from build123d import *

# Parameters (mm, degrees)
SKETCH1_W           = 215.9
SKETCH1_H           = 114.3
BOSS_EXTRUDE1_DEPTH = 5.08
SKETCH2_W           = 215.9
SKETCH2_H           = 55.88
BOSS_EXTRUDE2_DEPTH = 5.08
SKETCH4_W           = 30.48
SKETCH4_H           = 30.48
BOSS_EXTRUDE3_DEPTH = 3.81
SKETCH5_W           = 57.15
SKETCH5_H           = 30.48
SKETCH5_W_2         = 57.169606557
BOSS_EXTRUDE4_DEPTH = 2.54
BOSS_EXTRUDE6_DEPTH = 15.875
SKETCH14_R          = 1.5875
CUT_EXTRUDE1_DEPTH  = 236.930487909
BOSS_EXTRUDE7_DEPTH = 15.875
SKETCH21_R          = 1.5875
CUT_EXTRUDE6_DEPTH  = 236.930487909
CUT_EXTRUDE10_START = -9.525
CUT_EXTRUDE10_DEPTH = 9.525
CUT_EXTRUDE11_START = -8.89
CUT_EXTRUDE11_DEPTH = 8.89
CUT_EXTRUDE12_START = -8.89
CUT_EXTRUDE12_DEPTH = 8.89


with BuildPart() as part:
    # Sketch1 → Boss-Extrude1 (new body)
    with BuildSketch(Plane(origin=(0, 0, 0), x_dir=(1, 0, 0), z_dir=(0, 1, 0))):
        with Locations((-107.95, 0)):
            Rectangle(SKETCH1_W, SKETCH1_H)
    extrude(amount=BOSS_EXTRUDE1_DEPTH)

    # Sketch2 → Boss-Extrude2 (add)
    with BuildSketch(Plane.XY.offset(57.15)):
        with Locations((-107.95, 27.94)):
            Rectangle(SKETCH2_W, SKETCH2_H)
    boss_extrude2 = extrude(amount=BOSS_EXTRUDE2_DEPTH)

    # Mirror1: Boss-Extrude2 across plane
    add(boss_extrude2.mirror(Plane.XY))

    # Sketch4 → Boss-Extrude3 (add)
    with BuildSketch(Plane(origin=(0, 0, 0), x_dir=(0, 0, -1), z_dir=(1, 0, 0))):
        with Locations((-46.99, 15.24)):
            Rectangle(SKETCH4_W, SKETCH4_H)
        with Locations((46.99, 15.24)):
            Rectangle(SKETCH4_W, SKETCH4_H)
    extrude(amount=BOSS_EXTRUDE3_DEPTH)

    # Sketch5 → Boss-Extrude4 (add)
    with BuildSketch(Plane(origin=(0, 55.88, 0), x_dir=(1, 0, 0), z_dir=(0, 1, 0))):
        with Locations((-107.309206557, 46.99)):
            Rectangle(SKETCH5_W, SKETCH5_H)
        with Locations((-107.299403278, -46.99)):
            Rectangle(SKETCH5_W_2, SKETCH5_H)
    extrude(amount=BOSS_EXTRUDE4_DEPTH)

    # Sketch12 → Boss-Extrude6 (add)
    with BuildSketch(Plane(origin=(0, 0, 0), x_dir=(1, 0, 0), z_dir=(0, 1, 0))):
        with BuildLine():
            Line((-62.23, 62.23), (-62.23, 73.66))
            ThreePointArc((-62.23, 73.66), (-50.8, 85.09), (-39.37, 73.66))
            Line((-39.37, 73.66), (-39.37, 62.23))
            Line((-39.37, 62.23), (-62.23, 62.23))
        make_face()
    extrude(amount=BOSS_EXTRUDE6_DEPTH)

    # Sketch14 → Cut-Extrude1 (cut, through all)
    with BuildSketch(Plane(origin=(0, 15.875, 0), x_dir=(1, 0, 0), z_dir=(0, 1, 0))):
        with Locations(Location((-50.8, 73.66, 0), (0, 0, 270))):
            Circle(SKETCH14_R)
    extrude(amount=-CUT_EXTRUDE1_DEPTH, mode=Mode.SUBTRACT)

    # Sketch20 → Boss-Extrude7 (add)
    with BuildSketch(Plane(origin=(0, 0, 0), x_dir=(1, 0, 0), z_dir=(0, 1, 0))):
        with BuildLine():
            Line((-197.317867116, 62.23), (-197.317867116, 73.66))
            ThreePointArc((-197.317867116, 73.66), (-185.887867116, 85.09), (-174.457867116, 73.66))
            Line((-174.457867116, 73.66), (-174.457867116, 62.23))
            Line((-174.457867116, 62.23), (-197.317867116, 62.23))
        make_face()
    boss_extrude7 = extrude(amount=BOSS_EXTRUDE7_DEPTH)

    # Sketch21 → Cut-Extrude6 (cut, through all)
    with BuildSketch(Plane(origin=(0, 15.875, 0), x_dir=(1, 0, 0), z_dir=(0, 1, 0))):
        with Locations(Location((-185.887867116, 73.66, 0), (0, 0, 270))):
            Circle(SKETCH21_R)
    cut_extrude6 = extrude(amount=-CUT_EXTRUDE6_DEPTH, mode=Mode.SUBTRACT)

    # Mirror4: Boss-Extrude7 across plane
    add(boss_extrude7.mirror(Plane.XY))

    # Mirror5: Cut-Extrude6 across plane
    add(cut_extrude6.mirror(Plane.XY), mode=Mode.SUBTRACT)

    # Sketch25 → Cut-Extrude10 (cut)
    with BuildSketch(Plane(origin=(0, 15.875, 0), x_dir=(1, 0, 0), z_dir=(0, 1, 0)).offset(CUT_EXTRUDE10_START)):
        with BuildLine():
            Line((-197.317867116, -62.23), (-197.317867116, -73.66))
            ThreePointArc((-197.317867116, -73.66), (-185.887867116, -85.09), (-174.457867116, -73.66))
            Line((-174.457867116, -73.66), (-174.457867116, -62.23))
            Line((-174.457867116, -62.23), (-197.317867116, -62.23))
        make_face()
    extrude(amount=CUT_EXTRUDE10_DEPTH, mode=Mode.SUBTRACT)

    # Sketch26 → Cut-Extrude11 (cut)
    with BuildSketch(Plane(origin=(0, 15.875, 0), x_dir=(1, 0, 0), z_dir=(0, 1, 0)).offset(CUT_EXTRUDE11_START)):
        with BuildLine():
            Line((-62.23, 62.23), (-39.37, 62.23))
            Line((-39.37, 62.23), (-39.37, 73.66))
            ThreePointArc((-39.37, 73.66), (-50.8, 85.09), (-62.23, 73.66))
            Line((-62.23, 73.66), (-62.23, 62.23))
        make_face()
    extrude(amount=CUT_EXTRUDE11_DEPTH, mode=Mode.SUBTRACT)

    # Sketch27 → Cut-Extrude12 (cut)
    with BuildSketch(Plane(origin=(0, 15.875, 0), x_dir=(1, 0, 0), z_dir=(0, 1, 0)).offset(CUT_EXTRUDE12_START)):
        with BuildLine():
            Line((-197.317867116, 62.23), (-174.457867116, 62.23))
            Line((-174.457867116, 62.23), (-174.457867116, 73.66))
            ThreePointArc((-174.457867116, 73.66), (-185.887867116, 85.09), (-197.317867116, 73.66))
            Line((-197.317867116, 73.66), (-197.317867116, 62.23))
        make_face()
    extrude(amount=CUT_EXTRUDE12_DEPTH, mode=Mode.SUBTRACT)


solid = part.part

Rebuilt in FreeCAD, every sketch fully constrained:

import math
import FreeCAD as App
import Part
import Sketcher
from FreeCAD import Vector
Q = App.Units.Quantity

doc = App.newDocument("Part")
body = doc.addObject("PartDesign::Body", "Body")

sketch1 = body.newObject("Sketcher::SketchObject", "Sketch")
sketch1.AttachmentSupport = (doc.getObject("XZ_Plane"), [""])
sketch1.MapMode = "FlatFace"
sketch1.addGeometry(Part.LineSegment(Vector(-216, -57, 0), Vector(-216, 57, 0)), False)
sketch1.addGeometry(Part.LineSegment(Vector(-216, 57, 0), Vector(0, 57, 0)), False)
sketch1.addGeometry(Part.LineSegment(Vector(0, 57, 0), Vector(0, -57, 0)), False)
sketch1.addGeometry(Part.LineSegment(Vector(0, -57, 0), Vector(-216, -57, 0)), False)
sketch1.addConstraint(Sketcher.Constraint("Coincident", 0, 2, 1, 1))
sketch1.addConstraint(Sketcher.Constraint("Coincident", 1, 2, 2, 1))
sketch1.addConstraint(Sketcher.Constraint("Coincident", 2, 2, 3, 1))
sketch1.addConstraint(Sketcher.Constraint("Coincident", 3, 2, 0, 1))
sketch1.addConstraint(Sketcher.Constraint("Vertical", 0))
sketch1.addConstraint(Sketcher.Constraint("Horizontal", 1))
sketch1.addConstraint(Sketcher.Constraint("Vertical", 2))
sketch1.addConstraint(Sketcher.Constraint("Horizontal", 3))
sketch1.addConstraint(Sketcher.Constraint("Symmetric", 1, 2, 2, 2, -1, 1))
sketch1.addConstraint(Sketcher.Constraint("DistanceX", 1, 1, 1, 2, Q("8.5 in")))
sketch1.addConstraint(Sketcher.Constraint("DistanceY", 0, 1, 0, 2, Q("4.5 in")))
pad1 = body.newObject("PartDesign::Pad", "Pad")
pad1.Profile = sketch1
pad1.Length = Q("0.2 in")
pad1.Reversed = True

sketch2 = body.newObject("Sketcher::SketchObject", "Sketch001")
sketch2.AttachmentSupport = (doc.getObject("XY_Plane"), [""])
sketch2.MapMode = "FlatFace"
sketch2.AttachmentOffset = App.Placement(Vector(0, 0, 2.25 * 25.4), App.Rotation())
sketch2.addGeometry(Part.LineSegment(Vector(-216, 56, 0), Vector(-216, 0, 0)), False)
sketch2.addGeometry(Part.LineSegment(Vector(-216, 0, 0), Vector(0, 0, 0)), False)
sketch2.addGeometry(Part.LineSegment(Vector(0, 0, 0), Vector(0, 56, 0)), False)
sketch2.addGeometry(Part.LineSegment(Vector(0, 56, 0), Vector(-216, 56, 0)), False)
sketch2.addConstraint(Sketcher.Constraint("Coincident", 0, 2, 1, 1))
sketch2.addConstraint(Sketcher.Constraint("Coincident", 1, 2, 2, 1))
sketch2.addConstraint(Sketcher.Constraint("Coincident", 2, 2, 3, 1))
sketch2.addConstraint(Sketcher.Constraint("Coincident", 3, 2, 0, 1))
sketch2.addConstraint(Sketcher.Constraint("Vertical", 0))
sketch2.addConstraint(Sketcher.Constraint("Horizontal", 1))
sketch2.addConstraint(Sketcher.Constraint("Vertical", 2))
sketch2.addConstraint(Sketcher.Constraint("Horizontal", 3))
sketch2.addConstraint(Sketcher.Constraint("Coincident", 1, 2, -1, 1))
sketch2.addConstraint(Sketcher.Constraint("DistanceX", 1, 1, 1, 2, Q("8.5 in")))
sketch2.addConstraint(Sketcher.Constraint("DistanceY", 0, 2, 0, 1, Q("2.2 in")))
pad2 = body.newObject("PartDesign::Pad", "Pad001")
pad2.Profile = sketch2
pad2.Length = Q("0.2 in")
doc.recompute()

mirrored = body.newObject("PartDesign::Mirrored", "Mirrored")
mirrored.Originals = [pad2]
mirrored.MirrorPlane = (doc.getObject("XY_Plane"), [""])
body.Tip = mirrored

sketch3 = body.newObject("Sketcher::SketchObject", "Sketch002")
sketch3.AttachmentSupport = (doc.getObject("YZ_Plane"), [""])
sketch3.MapMode = "FlatFace"
sketch3.addGeometry(Part.LineSegment(Vector(30, 62, 0), Vector(0, 62, 0)), False)
sketch3.addGeometry(Part.LineSegment(Vector(0, 62, 0), Vector(0, 32, 0)), False)
sketch3.addGeometry(Part.LineSegment(Vector(0, 32, 0), Vector(30, 32, 0)), False)
sketch3.addGeometry(Part.LineSegment(Vector(30, 32, 0), Vector(30, 62, 0)), False)
sketch3.addGeometry(Part.LineSegment(Vector(30, -32, 0), Vector(0, -32, 0)), False)
sketch3.addGeometry(Part.LineSegment(Vector(0, -32, 0), Vector(0, -62, 0)), False)
sketch3.addGeometry(Part.LineSegment(Vector(0, -62, 0), Vector(30, -62, 0)), False)
sketch3.addGeometry(Part.LineSegment(Vector(30, -62, 0), Vector(30, -32, 0)), False)
sketch3.addConstraint(Sketcher.Constraint("Coincident", 0, 2, 1, 1))
sketch3.addConstraint(Sketcher.Constraint("Coincident", 1, 2, 2, 1))
sketch3.addConstraint(Sketcher.Constraint("Coincident", 2, 2, 3, 1))
sketch3.addConstraint(Sketcher.Constraint("Coincident", 3, 2, 0, 1))
sketch3.addConstraint(Sketcher.Constraint("Coincident", 4, 2, 5, 1))
sketch3.addConstraint(Sketcher.Constraint("Coincident", 5, 2, 6, 1))
sketch3.addConstraint(Sketcher.Constraint("Coincident", 6, 2, 7, 1))
sketch3.addConstraint(Sketcher.Constraint("Coincident", 7, 2, 4, 1))
sketch3.addConstraint(Sketcher.Constraint("Horizontal", 0))
sketch3.addConstraint(Sketcher.Constraint("Vertical", 1))
sketch3.addConstraint(Sketcher.Constraint("Horizontal", 2))
sketch3.addConstraint(Sketcher.Constraint("Vertical", 3))
sketch3.addConstraint(Sketcher.Constraint("Horizontal", 4))
sketch3.addConstraint(Sketcher.Constraint("Vertical", 5))
sketch3.addConstraint(Sketcher.Constraint("Horizontal", 6))
sketch3.addConstraint(Sketcher.Constraint("Vertical", 7))
sketch3.addConstraint(Sketcher.Constraint("Symmetric", 1, 2, 4, 2, -1, 1))
sketch3.addConstraint(Sketcher.Constraint("Symmetric", 0, 2, 5, 2, -1))
sketch3.addConstraint(Sketcher.Constraint("Vertical", 3, 2, 6, 2))
sketch3.addConstraint(Sketcher.Constraint("Equal", 6, 1))
sketch3.addConstraint(Sketcher.Constraint("DistanceX", 0, 2, 0, 1, Q("1.2 in")))
sketch3.addConstraint(Sketcher.Constraint("DistanceY", 4, 2, 1, 2, Q("2.5 in")))
pad3 = body.newObject("PartDesign::Pad", "Pad002")
pad3.Profile = sketch3
pad3.Length = Q("0.15 in")

sketch4 = body.newObject("Sketcher::SketchObject", "Sketch003")
sketch4.AttachmentSupport = (doc.getObject("XZ_Plane"), [""])
sketch4.MapMode = "FlatFace"
sketch4.AttachmentOffset = App.Placement(Vector(0, 0, -2.2 * 25.4), App.Rotation())
sketch4.addGeometry(Part.LineSegment(Vector(-136, -62, 0), Vector(-136, -32, 0)), False)
sketch4.addGeometry(Part.LineSegment(Vector(-136, -32, 0), Vector(-79, -32, 0)), False)
sketch4.addGeometry(Part.LineSegment(Vector(-79, -32, 0), Vector(-79, -62, 0)), False)
sketch4.addGeometry(Part.LineSegment(Vector(-79, -62, 0), Vector(-136, -62, 0)), False)
sketch4.addGeometry(Part.LineSegment(Vector(-136, 32, 0), Vector(-136, 62, 0)), False)
sketch4.addGeometry(Part.LineSegment(Vector(-136, 62, 0), Vector(-79, 62, 0)), False)
sketch4.addGeometry(Part.LineSegment(Vector(-79, 62, 0), Vector(-79, 32, 0)), False)
sketch4.addGeometry(Part.LineSegment(Vector(-79, 32, 0), Vector(-136, 32, 0)), False)
sketch4.addConstraint(Sketcher.Constraint("Coincident", 0, 2, 1, 1))
sketch4.addConstraint(Sketcher.Constraint("Coincident", 1, 2, 2, 1))
sketch4.addConstraint(Sketcher.Constraint("Coincident", 2, 2, 3, 1))
sketch4.addConstraint(Sketcher.Constraint("Coincident", 3, 2, 0, 1))
sketch4.addConstraint(Sketcher.Constraint("Coincident", 4, 2, 5, 1))
sketch4.addConstraint(Sketcher.Constraint("Coincident", 5, 2, 6, 1))
sketch4.addConstraint(Sketcher.Constraint("Coincident", 6, 2, 7, 1))
sketch4.addConstraint(Sketcher.Constraint("Coincident", 7, 2, 4, 1))
sketch4.addConstraint(Sketcher.Constraint("Vertical", 0))
sketch4.addConstraint(Sketcher.Constraint("Horizontal", 1))
sketch4.addConstraint(Sketcher.Constraint("Vertical", 2))
sketch4.addConstraint(Sketcher.Constraint("Horizontal", 3))
sketch4.addConstraint(Sketcher.Constraint("Vertical", 4))
sketch4.addConstraint(Sketcher.Constraint("Horizontal", 5))
sketch4.addConstraint(Sketcher.Constraint("Vertical", 6))
sketch4.addConstraint(Sketcher.Constraint("Horizontal", 7))
sketch4.addConstraint(Sketcher.Constraint("Symmetric", 3, 2, 4, 2, -1))
sketch4.addConstraint(Sketcher.Constraint("Equal", 2, 4))
sketch4.addConstraint(Sketcher.Constraint("DistanceY", 0, 1, 0, 2, Q("1.2 in")))
sketch4.addConstraint(Sketcher.Constraint("DistanceX", 1, 1, 1, 2, Q("2.25 in")))
sketch4.addConstraint(Sketcher.Constraint("DistanceY", 0, 2, 4, 2, Q("3.7 in")))
sketch4.addConstraint(Sketcher.Constraint("DistanceX", 5, 2, -1, 1, Q("3.099 in")))
sketch4.addConstraint(Sketcher.Constraint("DistanceX", 5, 1, 5, 2, 57.169607))
pad4 = body.newObject("PartDesign::Pad", "Pad003")
pad4.Profile = sketch4
pad4.Length = Q("0.1 in")
pad4.Reversed = True

sketch5 = body.newObject("Sketcher::SketchObject", "Sketch004")
sketch5.AttachmentSupport = (doc.getObject("XZ_Plane"), [""])
sketch5.MapMode = "FlatFace"
sketch5.addGeometry(Part.LineSegment(Vector(-62, -74, 0), Vector(-62, -62, 0)), False)
sketch5.addGeometry(Part.LineSegment(Vector(-62, -62, 0), Vector(-39, -62, 0)), False)
sketch5.addGeometry(Part.LineSegment(Vector(-39, -62, 0), Vector(-39, -74, 0)), False)
sketch5.addGeometry(Part.ArcOfCircle(Part.Circle(Vector(-51, -74, 0), Vector(0, 0, 1), 11), math.radians(180), math.radians(360)), False)
sketch5.addConstraint(Sketcher.Constraint("Coincident", 0, 2, 1, 1))
sketch5.addConstraint(Sketcher.Constraint("Coincident", 1, 2, 2, 1))
sketch5.addConstraint(Sketcher.Constraint("Tangent", 2, 2, 3, 2))
sketch5.addConstraint(Sketcher.Constraint("Tangent", 3, 1, 0, 1))
sketch5.addConstraint(Sketcher.Constraint("Vertical", 0))
sketch5.addConstraint(Sketcher.Constraint("Horizontal", 1))
sketch5.addConstraint(Sketcher.Constraint("Vertical", 2))
sketch5.addConstraint(Sketcher.Constraint("Radius", 3, Q("0.45 in")))
sketch5.addConstraint(Sketcher.Constraint("DistanceX", 3, 3, -1, 1, Q("2 in")))
sketch5.addConstraint(Sketcher.Constraint("DistanceY", 0, 1, 0, 2, Q("0.45 in")))
sketch5.addConstraint(Sketcher.Constraint("DistanceY", 3, 3, -1, 1, Q("2.9 in")))
pad5 = body.newObject("PartDesign::Pad", "Pad004")
pad5.Profile = sketch5
pad5.Length = Q("0.625 in")
pad5.Reversed = True

sketch6 = body.newObject("Sketcher::SketchObject", "Sketch005")
sketch6.AttachmentSupport = (doc.getObject("XZ_Plane"), [""])
sketch6.MapMode = "FlatFace"
sketch6.AttachmentOffset = App.Placement(Vector(0, 0, -0.625 * 25.4), App.Rotation())
sketch6.addGeometry(Part.Circle(Vector(-50.8, -73.7, 0), Vector(0, 0, 1), 1.6), False)
sketch6.addConstraint(Sketcher.Constraint("Diameter", 0, Q("0.125 in")))
sketch6.addConstraint(Sketcher.Constraint("DistanceX", 0, 3, -1, 1, Q("2 in")))
sketch6.addConstraint(Sketcher.Constraint("DistanceY", 0, 3, -1, 1, Q("2.9 in")))
pocket1 = body.newObject("PartDesign::Pocket", "Pocket")
pocket1.Profile = sketch6
pocket1.Type = "ThroughAll"
pocket1.Reversed = True

sketch7 = body.newObject("Sketcher::SketchObject", "Sketch006")
sketch7.AttachmentSupport = (doc.getObject("XZ_Plane"), [""])
sketch7.MapMode = "FlatFace"
sketch7.addGeometry(Part.LineSegment(Vector(-197, -74, 0), Vector(-197, -62, 0)), False)
sketch7.addGeometry(Part.LineSegment(Vector(-197, -62, 0), Vector(-174, -62, 0)), False)
sketch7.addGeometry(Part.LineSegment(Vector(-174, -62, 0), Vector(-174, -74, 0)), False)
sketch7.addGeometry(Part.ArcOfCircle(Part.Circle(Vector(-186, -74, 0), Vector(0, 0, 1), 11), math.radians(180), math.radians(360)), False)
sketch7.addConstraint(Sketcher.Constraint("Coincident", 0, 2, 1, 1))
sketch7.addConstraint(Sketcher.Constraint("Coincident", 1, 2, 2, 1))
sketch7.addConstraint(Sketcher.Constraint("Tangent", 2, 2, 3, 2))
sketch7.addConstraint(Sketcher.Constraint("Tangent", 3, 1, 0, 1))
sketch7.addConstraint(Sketcher.Constraint("Vertical", 0))
sketch7.addConstraint(Sketcher.Constraint("Horizontal", 1))
sketch7.addConstraint(Sketcher.Constraint("Vertical", 2))
sketch7.addConstraint(Sketcher.Constraint("Radius", 3, Q("0.45 in")))
sketch7.addConstraint(Sketcher.Constraint("DistanceY", 0, 1, 0, 2, Q("0.45 in")))
sketch7.addConstraint(Sketcher.Constraint("DistanceY", 3, 3, -1, 1, Q("2.9 in")))
sketch7.addConstraint(Sketcher.Constraint("DistanceX", 3, 3, -1, 1, 185.887867))
pad6 = body.newObject("PartDesign::Pad", "Pad005")
pad6.Profile = sketch7
pad6.Length = Q("0.625 in")
pad6.Reversed = True

sketch8 = body.newObject("Sketcher::SketchObject", "Sketch007")
sketch8.AttachmentSupport = (doc.getObject("XZ_Plane"), [""])
sketch8.MapMode = "FlatFace"
sketch8.AttachmentOffset = App.Placement(Vector(0, 0, -0.625 * 25.4), App.Rotation())
sketch8.addGeometry(Part.Circle(Vector(-185.9, -73.7, 0), Vector(0, 0, 1), 1.6), False)
sketch8.addConstraint(Sketcher.Constraint("Diameter", 0, Q("0.125 in")))
sketch8.addConstraint(Sketcher.Constraint("DistanceY", 0, 3, -1, 1, Q("2.9 in")))
sketch8.addConstraint(Sketcher.Constraint("DistanceX", 0, 3, -1, 1, 185.887867))
pocket2 = body.newObject("PartDesign::Pocket", "Pocket001")
pocket2.Profile = sketch8
pocket2.Type = "ThroughAll"
pocket2.Reversed = True
doc.recompute()

mirrored2 = body.newObject("PartDesign::Mirrored", "Mirrored001")
mirrored2.Originals = [pad6]
mirrored2.MirrorPlane = (doc.getObject("XY_Plane"), [""])
body.Tip = mirrored2
doc.recompute()

mirrored3 = body.newObject("PartDesign::Mirrored", "Mirrored002")
mirrored3.Originals = [pocket2]
mirrored3.MirrorPlane = (doc.getObject("XY_Plane"), [""])
body.Tip = mirrored3

sketch9 = body.newObject("Sketcher::SketchObject", "Sketch008")
sketch9.AttachmentSupport = (doc.getObject("XZ_Plane"), [""])
sketch9.MapMode = "FlatFace"
sketch9.AttachmentOffset = App.Placement(Vector(0, 0, -0.25 * 25.4), App.Rotation())
sketch9.addGeometry(Part.LineSegment(Vector(-197, 62, 0), Vector(-197, 74, 0)), False)
sketch9.addGeometry(Part.ArcOfCircle(Part.Circle(Vector(-186, 74, 0), Vector(0, 0, 1), 11), math.radians(0), math.radians(180)), False)
sketch9.addGeometry(Part.LineSegment(Vector(-174, 74, 0), Vector(-174, 62, 0)), False)
sketch9.addGeometry(Part.LineSegment(Vector(-174, 62, 0), Vector(-197, 62, 0)), False)
sketch9.addConstraint(Sketcher.Constraint("Tangent", 0, 2, 1, 2))
sketch9.addConstraint(Sketcher.Constraint("Tangent", 1, 1, 2, 1))
sketch9.addConstraint(Sketcher.Constraint("Coincident", 2, 2, 3, 1))
sketch9.addConstraint(Sketcher.Constraint("Coincident", 3, 2, 0, 1))
sketch9.addConstraint(Sketcher.Constraint("Vertical", 0))
sketch9.addConstraint(Sketcher.Constraint("Vertical", 2))
sketch9.addConstraint(Sketcher.Constraint("Horizontal", 3))
sketch9.addConstraint(Sketcher.Constraint("Radius", 1, Q("0.45 in")))
sketch9.addConstraint(Sketcher.Constraint("DistanceY", 0, 1, 0, 2, Q("0.45 in")))
sketch9.addConstraint(Sketcher.Constraint("DistanceY", -1, 1, 1, 3, Q("2.9 in")))
sketch9.addConstraint(Sketcher.Constraint("DistanceX", 1, 3, -1, 1, 185.887867))
pocket3 = body.newObject("PartDesign::Pocket", "Pocket002")
pocket3.Profile = sketch9
pocket3.Length = Q("0.375 in")

sketch10 = body.newObject("Sketcher::SketchObject", "Sketch009")
sketch10.AttachmentSupport = (doc.getObject("XZ_Plane"), [""])
sketch10.MapMode = "FlatFace"
sketch10.AttachmentOffset = App.Placement(Vector(0, 0, -0.275 * 25.4), App.Rotation())
sketch10.addGeometry(Part.LineSegment(Vector(-62, -62, 0), Vector(-39, -62, 0)), False)
sketch10.addGeometry(Part.LineSegment(Vector(-39, -62, 0), Vector(-39, -74, 0)), False)
sketch10.addGeometry(Part.ArcOfCircle(Part.Circle(Vector(-51, -74, 0), Vector(0, 0, 1), 11), math.radians(180), math.radians(360)), False)
sketch10.addGeometry(Part.LineSegment(Vector(-62, -74, 0), Vector(-62, -62, 0)), False)
sketch10.addConstraint(Sketcher.Constraint("Coincident", 0, 2, 1, 1))
sketch10.addConstraint(Sketcher.Constraint("Tangent", 1, 2, 2, 2))
sketch10.addConstraint(Sketcher.Constraint("Tangent", 2, 1, 3, 1))
sketch10.addConstraint(Sketcher.Constraint("Coincident", 3, 2, 0, 1))
sketch10.addConstraint(Sketcher.Constraint("Horizontal", 0))
sketch10.addConstraint(Sketcher.Constraint("Vertical", 1))
sketch10.addConstraint(Sketcher.Constraint("Vertical", 3))
sketch10.addConstraint(Sketcher.Constraint("Radius", 2, Q("0.45 in")))
sketch10.addConstraint(Sketcher.Constraint("DistanceX", 2, 3, -1, 1, Q("2 in")))
sketch10.addConstraint(Sketcher.Constraint("DistanceY", 1, 2, 1, 1, Q("0.45 in")))
sketch10.addConstraint(Sketcher.Constraint("DistanceY", 2, 3, -1, 1, Q("2.9 in")))
pocket4 = body.newObject("PartDesign::Pocket", "Pocket003")
pocket4.Profile = sketch10
pocket4.Length = Q("0.35 in")

sketch11 = body.newObject("Sketcher::SketchObject", "Sketch010")
sketch11.AttachmentSupport = (doc.getObject("XZ_Plane"), [""])
sketch11.MapMode = "FlatFace"
sketch11.AttachmentOffset = App.Placement(Vector(0, 0, -0.275 * 25.4), App.Rotation())
sketch11.addGeometry(Part.LineSegment(Vector(-197, -62, 0), Vector(-174, -62, 0)), False)
sketch11.addGeometry(Part.LineSegment(Vector(-174, -62, 0), Vector(-174, -74, 0)), False)
sketch11.addGeometry(Part.ArcOfCircle(Part.Circle(Vector(-186, -74, 0), Vector(0, 0, 1), 11), math.radians(180), math.radians(360)), False)
sketch11.addGeometry(Part.LineSegment(Vector(-197, -74, 0), Vector(-197, -62, 0)), False)
sketch11.addConstraint(Sketcher.Constraint("Coincident", 0, 2, 1, 1))
sketch11.addConstraint(Sketcher.Constraint("Tangent", 1, 2, 2, 2))
sketch11.addConstraint(Sketcher.Constraint("Tangent", 2, 1, 3, 1))
sketch11.addConstraint(Sketcher.Constraint("Coincident", 3, 2, 0, 1))
sketch11.addConstraint(Sketcher.Constraint("Horizontal", 0))
sketch11.addConstraint(Sketcher.Constraint("Vertical", 1))
sketch11.addConstraint(Sketcher.Constraint("Vertical", 3))
sketch11.addConstraint(Sketcher.Constraint("Radius", 2, Q("0.45 in")))
sketch11.addConstraint(Sketcher.Constraint("DistanceY", 1, 2, 1, 1, Q("0.45 in")))
sketch11.addConstraint(Sketcher.Constraint("DistanceY", 2, 3, -1, 1, Q("2.9 in")))
sketch11.addConstraint(Sketcher.Constraint("DistanceX", 2, 3, -1, 1, 185.887867))
pocket5 = body.newObject("PartDesign::Pocket", "Pocket004")
pocket5.Profile = sketch11
pocket5.Length = Q("0.35 in")

doc.recompute()
